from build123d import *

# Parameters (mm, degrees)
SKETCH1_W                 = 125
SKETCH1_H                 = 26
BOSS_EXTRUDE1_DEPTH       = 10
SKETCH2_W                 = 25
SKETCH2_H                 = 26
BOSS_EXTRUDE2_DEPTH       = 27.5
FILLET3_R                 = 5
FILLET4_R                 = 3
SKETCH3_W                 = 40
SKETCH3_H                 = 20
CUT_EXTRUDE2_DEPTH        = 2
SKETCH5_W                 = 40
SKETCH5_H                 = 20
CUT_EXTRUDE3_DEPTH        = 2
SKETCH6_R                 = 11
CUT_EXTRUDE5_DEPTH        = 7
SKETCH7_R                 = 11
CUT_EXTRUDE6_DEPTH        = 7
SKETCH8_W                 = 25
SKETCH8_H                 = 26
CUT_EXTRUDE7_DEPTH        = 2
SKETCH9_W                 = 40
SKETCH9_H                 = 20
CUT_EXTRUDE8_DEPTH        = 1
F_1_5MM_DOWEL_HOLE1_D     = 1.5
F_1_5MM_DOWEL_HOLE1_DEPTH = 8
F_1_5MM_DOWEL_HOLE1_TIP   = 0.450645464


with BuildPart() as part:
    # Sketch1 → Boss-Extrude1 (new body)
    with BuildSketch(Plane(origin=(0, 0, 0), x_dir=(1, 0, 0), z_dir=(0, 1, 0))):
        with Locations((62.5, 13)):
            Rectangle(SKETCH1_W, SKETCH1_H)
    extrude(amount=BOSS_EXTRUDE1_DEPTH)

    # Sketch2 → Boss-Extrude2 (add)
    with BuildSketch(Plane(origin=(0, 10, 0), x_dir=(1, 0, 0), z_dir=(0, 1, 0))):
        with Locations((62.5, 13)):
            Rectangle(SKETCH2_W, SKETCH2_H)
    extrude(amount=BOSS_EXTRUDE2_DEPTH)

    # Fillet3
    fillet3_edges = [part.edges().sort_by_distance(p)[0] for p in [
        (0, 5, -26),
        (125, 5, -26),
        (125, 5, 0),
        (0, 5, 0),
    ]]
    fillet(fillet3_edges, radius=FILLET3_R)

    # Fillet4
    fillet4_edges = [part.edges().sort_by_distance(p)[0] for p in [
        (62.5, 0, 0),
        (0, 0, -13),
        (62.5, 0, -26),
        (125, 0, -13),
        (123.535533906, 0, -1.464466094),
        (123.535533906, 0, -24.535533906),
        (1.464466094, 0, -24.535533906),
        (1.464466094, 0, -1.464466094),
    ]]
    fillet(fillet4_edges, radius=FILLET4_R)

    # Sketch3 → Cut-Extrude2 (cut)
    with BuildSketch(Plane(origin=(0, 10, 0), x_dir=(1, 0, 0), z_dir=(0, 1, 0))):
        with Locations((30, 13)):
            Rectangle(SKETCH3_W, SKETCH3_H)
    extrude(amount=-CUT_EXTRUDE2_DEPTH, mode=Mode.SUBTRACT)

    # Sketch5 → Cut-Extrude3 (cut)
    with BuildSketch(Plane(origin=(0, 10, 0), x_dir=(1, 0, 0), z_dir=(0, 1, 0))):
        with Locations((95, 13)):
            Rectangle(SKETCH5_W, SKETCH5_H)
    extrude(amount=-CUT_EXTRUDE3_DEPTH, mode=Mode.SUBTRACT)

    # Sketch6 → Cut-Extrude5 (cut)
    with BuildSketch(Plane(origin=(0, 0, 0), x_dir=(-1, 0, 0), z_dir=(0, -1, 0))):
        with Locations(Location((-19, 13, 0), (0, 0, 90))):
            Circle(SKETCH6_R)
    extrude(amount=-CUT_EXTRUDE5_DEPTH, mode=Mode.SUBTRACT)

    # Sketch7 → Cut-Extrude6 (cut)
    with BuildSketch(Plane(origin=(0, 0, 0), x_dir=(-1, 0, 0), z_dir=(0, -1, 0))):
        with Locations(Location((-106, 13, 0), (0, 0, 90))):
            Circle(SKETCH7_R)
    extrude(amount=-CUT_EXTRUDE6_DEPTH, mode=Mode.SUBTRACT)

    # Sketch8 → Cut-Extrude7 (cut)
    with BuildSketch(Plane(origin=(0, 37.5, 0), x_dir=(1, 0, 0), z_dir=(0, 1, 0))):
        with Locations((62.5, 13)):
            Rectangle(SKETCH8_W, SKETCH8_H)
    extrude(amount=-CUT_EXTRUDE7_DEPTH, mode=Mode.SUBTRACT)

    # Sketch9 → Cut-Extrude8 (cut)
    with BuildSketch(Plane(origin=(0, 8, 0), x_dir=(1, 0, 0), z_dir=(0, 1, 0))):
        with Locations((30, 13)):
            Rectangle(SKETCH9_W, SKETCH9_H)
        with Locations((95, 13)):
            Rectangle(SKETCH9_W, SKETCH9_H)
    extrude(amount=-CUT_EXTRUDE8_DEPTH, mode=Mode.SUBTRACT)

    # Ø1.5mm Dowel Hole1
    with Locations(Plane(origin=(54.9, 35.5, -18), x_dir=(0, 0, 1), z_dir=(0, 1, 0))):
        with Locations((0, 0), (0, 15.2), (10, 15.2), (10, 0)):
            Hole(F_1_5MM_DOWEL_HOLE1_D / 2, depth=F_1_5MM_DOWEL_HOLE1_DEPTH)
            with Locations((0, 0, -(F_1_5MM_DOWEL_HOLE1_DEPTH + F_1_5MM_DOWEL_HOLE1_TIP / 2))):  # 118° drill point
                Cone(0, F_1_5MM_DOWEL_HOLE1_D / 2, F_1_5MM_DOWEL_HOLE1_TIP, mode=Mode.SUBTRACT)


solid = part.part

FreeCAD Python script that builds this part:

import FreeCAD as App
import Part
import Sketcher
Q = App.Units.Quantity


def edges_at(feature, points):
    """Names of the edges that pass closest to the given points."""
    edges = feature.Shape.Edges
    near = lambda p: min(range(len(edges)), key=lambda i: edges[i].distToShape(Part.Vertex(*p))[0])
    return sorted({f"Edge{near(p) + 1}" for p in points})

doc = App.newDocument("Part")
body = doc.addObject("PartDesign::Body", "Body")

sketch1 = body.newObject("Sketcher::SketchObject", "Sketch")
sketch1.AttachmentSupport = (doc.getObject("XZ_Plane"), [""])
sketch1.MapMode = "FlatFace"
sketch1.addGeometry(Part.LineSegment(App.Vector(0, -26, 0), App.Vector(0, 0, 0)), False)
sketch1.addGeometry(Part.LineSegment(App.Vector(0, 0, 0), App.Vector(125, 0, 0)), False)
sketch1.addGeometry(Part.LineSegment(App.Vector(125, 0, 0), App.Vector(125, -26, 0)), False)
sketch1.addGeometry(Part.LineSegment(App.Vector(125, -26, 0), App.Vector(0, -26, 0)), False)
sketch1.addConstraint(Sketcher.Constraint("Coincident", 0, 2, 1, 1))
sketch1.addConstraint(Sketcher.Constraint("Coincident", 1, 2, 2, 1))
sketch1.addConstraint(Sketcher.Constraint("Coincident", 2, 2, 3, 1))
sketch1.addConstraint(Sketcher.Constraint("Coincident", 3, 2, 0, 1))
sketch1.addConstraint(Sketcher.Constraint("Vertical", 0))
sketch1.addConstraint(Sketcher.Constraint("Horizontal", 1))
sketch1.addConstraint(Sketcher.Constraint("Vertical", 2))
sketch1.addConstraint(Sketcher.Constraint("Horizontal", 3))
sketch1.addConstraint(Sketcher.Constraint("Coincident", 0, 2, -1, 1))
sketch1.addConstraint(Sketcher.Constraint("DistanceX", 1, 1, 1, 2, Q("125 mm")))
sketch1.addConstraint(Sketcher.Constraint("DistanceY", 0, 1, 0, 2, Q("26 mm")))
pad1 = body.newObject("PartDesign::Pad", "Pad")
pad1.Profile = sketch1
pad1.Length = 10
pad1.Reversed = True

sketch2 = body.newObject("Sketcher::SketchObject", "Sketch001")
sketch2.AttachmentSupport = (doc.getObject("XZ_Plane"), [""])
sketch2.MapMode = "FlatFace"
sketch2.AttachmentOffset = App.Placement(App.Vector(0, 0, -10), App.Rotation())
sketch2.addGeometry(Part.LineSegment(App.Vector(50, -26, 0), App.Vector(50, 0, 0)), False)
sketch2.addGeometry(Part.LineSegment(App.Vector(50, 0, 0), App.Vector(75, 0, 0)), False)
sketch2.addGeometry(Part.LineSegment(App.Vector(75, 0, 0), App.Vector(75, -26, 0)), False)
sketch2.addGeometry(Part.LineSegment(App.Vector(75, -26, 0), App.Vector(50, -26, 0)), False)
sketch2.addConstraint(Sketcher.Constraint("Coincident", 0, 2, 1, 1))
sketch2.addConstraint(Sketcher.Constraint("Coincident", 1, 2, 2, 1))
sketch2.addConstraint(Sketcher.Constraint("Coincident", 2, 2, 3, 1))
sketch2.addConstraint(Sketcher.Constraint("Coincident", 3, 2, 0, 1))
sketch2.addConstraint(Sketcher.Constraint("Vertical", 0))
sketch2.addConstraint(Sketcher.Constraint("Horizontal", 1))
sketch2.addConstraint(Sketcher.Constraint("Vertical", 2))
sketch2.addConstraint(Sketcher.Constraint("Horizontal", 3))
sketch2.addConstraint(Sketcher.Constraint("PointOnObject", 0, 2, -1))
sketch2.addConstraint(Sketcher.Constraint("DistanceX", 1, 1, 1, 2, Q("25 mm")))
sketch2.addConstraint(Sketcher.Constraint("DistanceY", 0, 1, 0, 2, Q("26 mm")))
sketch2.addConstraint(Sketcher.Constraint("DistanceX", -1, 1, 0, 2, Q("50 mm")))
pad2 = body.newObject("PartDesign::Pad", "Pad001")
pad2.Profile = sketch2
pad2.Length = 27.5
pad2.Reversed = True
doc.recompute()

fillet = body.newObject("PartDesign::Fillet", "Fillet")
fillet.Base = (pad2, edges_at(pad2, [
    (0, 5, -26),
    (125, 5, -26),
    (125, 5, 0),
    (0, 5, 0),
]))
fillet.Radius = 5
doc.recompute()

fillet2 = body.newObject("PartDesign::Fillet", "Fillet001")
fillet2.Base = (fillet, edges_at(fillet, [
    (62.5, 0, 0),
    (0, 0, -13),
    (62.5, 0, -26),
    (125, 0, -13),
    (123.536, 0, -1.464),
    (123.536, 0, -24.536),
    (1.464, 0, -24.536),
    (1.464, 0, -1.464),
]))
fillet2.Radius = 3

sketch3 = body.newObject("Sketcher::SketchObject", "Sketch002")
sketch3.AttachmentSupport = (doc.getObject("XZ_Plane"), [""])
sketch3.MapMode = "FlatFace"
sketch3.AttachmentOffset = App.Placement(App.Vector(0, 0, -10), App.Rotation())
sketch3.addGeometry(Part.LineSegment(App.Vector(10, -23, 0), App.Vector(10, -3, 0)), False)
sketch3.addGeometry(Part.LineSegment(App.Vector(10, -3, 0), App.Vector(50, -3, 0)), False)
sketch3.addGeometry(Part.LineSegment(App.Vector(50, -3, 0), App.Vector(50, -23, 0)), False)
sketch3.addGeometry(Part.LineSegment(App.Vector(50, -23, 0), App.Vector(10, -23, 0)), False)
sketch3.addConstraint(Sketcher.Constraint("Coincident", 0, 2, 1, 1))
sketch3.addConstraint(Sketcher.Constraint("Coincident", 1, 2, 2, 1))
sketch3.addConstraint(Sketcher.Constraint("Coincident", 2, 2, 3, 1))
sketch3.addConstraint(Sketcher.Constraint("Coincident", 3, 2, 0, 1))
sketch3.addConstraint(Sketcher.Constraint("Vertical", 0))
sketch3.addConstraint(Sketcher.Constraint("Horizontal", 1))
sketch3.addConstraint(Sketcher.Constraint("Vertical", 2))
sketch3.addConstraint(Sketcher.Constraint("Horizontal", 3))
sketch3.addConstraint(Sketcher.Constraint("DistanceX", 1, 1, 1, 2, Q("40 mm")))
sketch3.addConstraint(Sketcher.Constraint("DistanceY", 0, 1, 0, 2, Q("20 mm")))
sketch3.addConstraint(Sketcher.Constraint("DistanceX", -1, 1, 0, 2, Q("10 mm")))
sketch3.addConstraint(Sketcher.Constraint("DistanceY", 0, 2, -1, 1, Q("3 mm")))
pocket1 = body.newObject("PartDesign::Pocket", "Pocket")
pocket1.Profile = sketch3
pocket1.Length = 2
pocket1.Reversed = True

sketch4 = body.newObject("Sketcher::SketchObject", "Sketch003")
sketch4.AttachmentSupport = (doc.getObject("XZ_Plane"), [""])
sketch4.MapMode = "FlatFace"
sketch4.AttachmentOffset = App.Placement(App.Vector(0, 0, -10), App.Rotation())
sketch4.addGeometry(Part.LineSegment(App.Vector(75, -23, 0), App.Vector(75, -3, 0)), False)
sketch4.addGeometry(Part.LineSegment(App.Vector(75, -3, 0), App.Vector(115, -3, 0)), False)
sketch4.addGeometry(Part.LineSegment(App.Vector(115, -3, 0), App.Vector(115, -23, 0)), False)
sketch4.addGeometry(Part.LineSegment(App.Vector(115, -23, 0), App.Vector(75, -23, 0)), False)
sketch4.addConstraint(Sketcher.Constraint("Coincident", 0, 2, 1, 1))
sketch4.addConstraint(Sketcher.Constraint("Coincident", 1, 2, 2, 1))
sketch4.addConstraint(Sketcher.Constraint("Coincident", 2, 2, 3, 1))
sketch4.addConstraint(Sketcher.Constraint("Coincident", 3, 2, 0, 1))
sketch4.addConstraint(Sketcher.Constraint("Vertical", 0))
sketch4.addConstraint(Sketcher.Constraint("Horizontal", 1))
sketch4.addConstraint(Sketcher.Constraint("Vertical", 2))
sketch4.addConstraint(Sketcher.Constraint("Horizontal", 3))
sketch4.addConstraint(Sketcher.Constraint("DistanceX", 1, 1, 1, 2, Q("40 mm")))
sketch4.addConstraint(Sketcher.Constraint("DistanceY", 0, 1, 0, 2, Q("20 mm")))
sketch4.addConstraint(Sketcher.Constraint("DistanceX", -1, 1, 0, 2, Q("75 mm")))
sketch4.addConstraint(Sketcher.Constraint("DistanceY", 0, 2, -1, 1, Q("3 mm")))
pocket2 = body.newObject("PartDesign::Pocket", "Pocket001")
pocket2.Profile = sketch4
pocket2.Length = 2
pocket2.Reversed = True

sketch5 = body.newObject("Sketcher::SketchObject", "Sketch004")
sketch5.AttachmentSupport = (doc.getObject("XZ_Plane"), [""])
sketch5.MapMode = "FlatFace"
sketch5.addGeometry(Part.Circle(App.Vector(19, -13, 0), App.Vector(0, 0, 1), 11), False)
sketch5.addConstraint(Sketcher.Constraint("Diameter", 0, Q("22 mm")))
sketch5.addConstraint(Sketcher.Constraint("DistanceX", -1, 1, 0, 3, Q("19 mm")))
sketch5.addConstraint(Sketcher.Constraint("DistanceY", 0, 3, -1, 1, Q("13 mm")))
pocket3 = body.newObject("PartDesign::Pocket", "Pocket002")
pocket3.Profile = sketch5
pocket3.Length = 7

sketch6 = body.newObject("Sketcher::SketchObject", "Sketch005")
sketch6.AttachmentSupport = (doc.getObject("XZ_Plane"), [""])
sketch6.MapMode = "FlatFace"
sketch6.addGeometry(Part.Circle(App.Vector(106, -13, 0), App.Vector(0, 0, 1), 11), False)
sketch6.addConstraint(Sketcher.Constraint("Diameter", 0, Q("22 mm")))
sketch6.addConstraint(Sketcher.Constraint("DistanceX", -1, 1, 0, 3, Q("106 mm")))
sketch6.addConstraint(Sketcher.Constraint("DistanceY", 0, 3, -1, 1, Q("13 mm")))
pocket4 = body.newObject("PartDesign::Pocket", "Pocket003")
pocket4.Profile = sketch6
pocket4.Length = 7

sketch7 = body.newObject("Sketcher::SketchObject", "Sketch006")
sketch7.AttachmentSupport = (doc.getObject("XZ_Plane"), [""])
sketch7.MapMode = "FlatFace"
sketch7.AttachmentOffset = App.Placement(App.Vector(0, 0, -37.5), App.Rotation())
sketch7.addGeometry(Part.LineSegment(App.Vector(50, -26, 0), App.Vector(50, 0, 0)), False)
sketch7.addGeometry(Part.LineSegment(App.Vector(50, 0, 0), App.Vector(75, 0, 0)), False)
sketch7.addGeometry(Part.LineSegment(App.Vector(75, 0, 0), App.Vector(75, -26, 0)), False)
sketch7.addGeometry(Part.LineSegment(App.Vector(75, -26, 0), App.Vector(50, -26, 0)), False)
sketch7.addConstraint(Sketcher.Constraint("Coincident", 0, 2, 1, 1))
sketch7.addConstraint(Sketcher.Constraint("Coincident", 1, 2, 2, 1))
sketch7.addConstraint(Sketcher.Constraint("Coincident", 2, 2, 3, 1))
sketch7.addConstraint(Sketcher.Constraint("Coincident", 3, 2, 0, 1))
sketch7.addConstraint(Sketcher.Constraint("Vertical", 0))
sketch7.addConstraint(Sketcher.Constraint("Horizontal", 1))
sketch7.addConstraint(Sketcher.Constraint("Vertical", 2))
sketch7.addConstraint(Sketcher.Constraint("Horizontal", 3))
sketch7.addConstraint(Sketcher.Constraint("PointOnObject", 0, 2, -1))
sketch7.addConstraint(Sketcher.Constraint("DistanceX", 1, 1, 1, 2, Q("25 mm")))
sketch7.addConstraint(Sketcher.Constraint("DistanceY", 0, 1, 0, 2, Q("26 mm")))
sketch7.addConstraint(Sketcher.Constraint("DistanceX", -1, 1, 0, 2, Q("50 mm")))
pocket5 = body.newObject("PartDesign::Pocket", "Pocket004")
pocket5.Profile = sketch7
pocket5.Length = 2
pocket5.Reversed = True

sketch8 = body.newObject("Sketcher::SketchObject", "Sketch007")
sketch8.AttachmentSupport = (doc.getObject("XZ_Plane"), [""])
sketch8.MapMode = "FlatFace"
sketch8.AttachmentOffset = App.Placement(App.Vector(0, 0, -8), App.Rotation())
sketch8.addGeometry(Part.LineSegment(App.Vector(10, -23, 0), App.Vector(10, -3, 0)), False)
sketch8.addGeometry(Part.LineSegment(App.Vector(10, -3, 0), App.Vector(50, -3, 0)), False)
sketch8.addGeometry(Part.LineSegment(App.Vector(50, -3, 0), App.Vector(50, -23, 0)), False)
sketch8.addGeometry(Part.LineSegment(App.Vector(50, -23, 0), App.Vector(10, -23, 0)), False)
sketch8.addGeometry(Part.LineSegment(App.Vector(75, -23, 0), App.Vector(75, -3, 0)), False)
sketch8.addGeometry(Part.LineSegment(App.Vector(75, -3, 0), App.Vector(115, -3, 0)), False)
sketch8.addGeometry(Part.LineSegment(App.Vector(115, -3, 0), App.Vector(115, -23, 0)), False)
sketch8.addGeometry(Part.LineSegment(App.Vector(115, -23, 0), App.Vector(75, -23, 0)), False)
sketch8.addConstraint(Sketcher.Constraint("Coincident", 0, 2, 1, 1))
sketch8.addConstraint(Sketcher.Constraint("Coincident", 1, 2, 2, 1))
sketch8.addConstraint(Sketcher.Constraint("Coincident", 2, 2, 3, 1))
sketch8.addConstraint(Sketcher.Constraint("Coincident", 3, 2, 0, 1))
sketch8.addConstraint(Sketcher.Constraint("Coincident", 4, 2, 5, 1))
sketch8.addConstraint(Sketcher.Constraint("Coincident", 5, 2, 6, 1))
sketch8.addConstraint(Sketcher.Constraint("Coincident", 6, 2, 7, 1))
sketch8.addConstraint(Sketcher.Constraint("Coincident", 7, 2, 4, 1))
sketch8.addConstraint(Sketcher.Constraint("Vertical", 0))
sketch8.addConstraint(Sketcher.Constraint("Horizontal", 1))
sketch8.addConstraint(Sketcher.Constraint("Vertical", 2))
sketch8.addConstraint(Sketcher.Constraint("Horizontal", 3))
sketch8.addConstraint(Sketcher.Constraint("Vertical", 4))
sketch8.addConstraint(Sketcher.Constraint("Horizontal", 5))
sketch8.addConstraint(Sketcher.Constraint("Vertical", 6))
sketch8.addConstraint(Sketcher.Constraint("Horizontal", 7))
sketch8.addConstraint(Sketcher.Constraint("Horizontal", 1, 2, 4, 2))
sketch8.addConstraint(Sketcher.Constraint("Horizontal", 3, 2, 6, 2))
sketch8.addConstraint(Sketcher.Constraint("Equal", 3, 5))
sketch8.addConstraint(Sketcher.Constraint("DistanceX", 1, 1, 1, 2, Q("40 mm")))
sketch8.addConstraint(Sketcher.Constraint("DistanceY", 0, 1, 0, 2, Q("20 mm")))
sketch8.addConstraint(Sketcher.Constraint("DistanceX", -1, 1, 0, 2, Q("10 mm")))
sketch8.addConstraint(Sketcher.Constraint("DistanceY", 0, 2, -1, 1, Q("3 mm")))
sketch8.addConstraint(Sketcher.Constraint("DistanceX", -1, 1, 4, 2, Q("75 mm")))
pocket6 = body.newObject("PartDesign::Pocket", "Pocket005")
pocket6.Profile = sketch8
pocket6.Length = 1
pocket6.Reversed = True

sketch9 = body.newObject("Sketcher::SketchObject", "Sketch008")
sketch9.AttachmentSupport = (doc.getObject("XZ_Plane"), [""])
sketch9.MapMode = "FlatFace"
sketch9.AttachmentOffset = App.Placement(App.Vector(0, 0, -35.5), App.Rotation())
sketch9.addGeometry(Part.Circle(App.Vector(54.9, -18, 0), App.Vector(0, 0, 1), 0.8), False)
sketch9.addGeometry(Part.Circle(App.Vector(70.1, -18, 0), App.Vector(0, 0, 1), 0.8), False)
sketch9.addGeometry(Part.Circle(App.Vector(70.1, -8, 0), App.Vector(0, 0, 1), 0.8), False)
sketch9.addGeometry(Part.Circle(App.Vector(54.9, -8, 0), App.Vector(0, 0, 1), 0.8), False)
sketch9.addConstraint(Sketcher.Constraint("Equal", 0, 1))
sketch9.addConstraint(Sketcher.Constraint("Equal", 1, 2))
sketch9.addConstraint(Sketcher.Constraint("Equal", 2, 3))
sketch9.addConstraint(Sketcher.Constraint("Horizontal", 0, 3, 1, 3))
sketch9.addConstraint(Sketcher.Constraint("Horizontal", 2, 3, 3, 3))
sketch9.addConstraint(Sketcher.Constraint("Vertical", 1, 3, 2, 3))
sketch9.addConstraint(Sketcher.Constraint("Vertical", 0, 3, 3, 3))
sketch9.addConstraint(Sketcher.Constraint("Diameter", 0, Q("1.5 mm")))
sketch9.addConstraint(Sketcher.Constraint("DistanceY", 0, 3, -1, 1, Q("18 mm")))
sketch9.addConstraint(Sketcher.Constraint("DistanceY", 2, 3, -1, 1, Q("8 mm")))
sketch9.addConstraint(Sketcher.Constraint("DistanceX", -1, 1, 0, 3, Q("54.9 mm")))
sketch9.addConstraint(Sketcher.Constraint("DistanceX", -1, 1, 1, 3, Q("70.1 mm")))
doc.recompute()
hole = body.newObject("PartDesign::Hole", "Hole")
hole.Profile = sketch9
hole.ThreadType = "None"
hole.Diameter = 1.5
hole.DepthType = "Dimension"
hole.Depth = 8
hole.DrillPoint = "Angled"
hole.DrillPointAngle = 118
hole.Reversed = True

doc.recompute()
